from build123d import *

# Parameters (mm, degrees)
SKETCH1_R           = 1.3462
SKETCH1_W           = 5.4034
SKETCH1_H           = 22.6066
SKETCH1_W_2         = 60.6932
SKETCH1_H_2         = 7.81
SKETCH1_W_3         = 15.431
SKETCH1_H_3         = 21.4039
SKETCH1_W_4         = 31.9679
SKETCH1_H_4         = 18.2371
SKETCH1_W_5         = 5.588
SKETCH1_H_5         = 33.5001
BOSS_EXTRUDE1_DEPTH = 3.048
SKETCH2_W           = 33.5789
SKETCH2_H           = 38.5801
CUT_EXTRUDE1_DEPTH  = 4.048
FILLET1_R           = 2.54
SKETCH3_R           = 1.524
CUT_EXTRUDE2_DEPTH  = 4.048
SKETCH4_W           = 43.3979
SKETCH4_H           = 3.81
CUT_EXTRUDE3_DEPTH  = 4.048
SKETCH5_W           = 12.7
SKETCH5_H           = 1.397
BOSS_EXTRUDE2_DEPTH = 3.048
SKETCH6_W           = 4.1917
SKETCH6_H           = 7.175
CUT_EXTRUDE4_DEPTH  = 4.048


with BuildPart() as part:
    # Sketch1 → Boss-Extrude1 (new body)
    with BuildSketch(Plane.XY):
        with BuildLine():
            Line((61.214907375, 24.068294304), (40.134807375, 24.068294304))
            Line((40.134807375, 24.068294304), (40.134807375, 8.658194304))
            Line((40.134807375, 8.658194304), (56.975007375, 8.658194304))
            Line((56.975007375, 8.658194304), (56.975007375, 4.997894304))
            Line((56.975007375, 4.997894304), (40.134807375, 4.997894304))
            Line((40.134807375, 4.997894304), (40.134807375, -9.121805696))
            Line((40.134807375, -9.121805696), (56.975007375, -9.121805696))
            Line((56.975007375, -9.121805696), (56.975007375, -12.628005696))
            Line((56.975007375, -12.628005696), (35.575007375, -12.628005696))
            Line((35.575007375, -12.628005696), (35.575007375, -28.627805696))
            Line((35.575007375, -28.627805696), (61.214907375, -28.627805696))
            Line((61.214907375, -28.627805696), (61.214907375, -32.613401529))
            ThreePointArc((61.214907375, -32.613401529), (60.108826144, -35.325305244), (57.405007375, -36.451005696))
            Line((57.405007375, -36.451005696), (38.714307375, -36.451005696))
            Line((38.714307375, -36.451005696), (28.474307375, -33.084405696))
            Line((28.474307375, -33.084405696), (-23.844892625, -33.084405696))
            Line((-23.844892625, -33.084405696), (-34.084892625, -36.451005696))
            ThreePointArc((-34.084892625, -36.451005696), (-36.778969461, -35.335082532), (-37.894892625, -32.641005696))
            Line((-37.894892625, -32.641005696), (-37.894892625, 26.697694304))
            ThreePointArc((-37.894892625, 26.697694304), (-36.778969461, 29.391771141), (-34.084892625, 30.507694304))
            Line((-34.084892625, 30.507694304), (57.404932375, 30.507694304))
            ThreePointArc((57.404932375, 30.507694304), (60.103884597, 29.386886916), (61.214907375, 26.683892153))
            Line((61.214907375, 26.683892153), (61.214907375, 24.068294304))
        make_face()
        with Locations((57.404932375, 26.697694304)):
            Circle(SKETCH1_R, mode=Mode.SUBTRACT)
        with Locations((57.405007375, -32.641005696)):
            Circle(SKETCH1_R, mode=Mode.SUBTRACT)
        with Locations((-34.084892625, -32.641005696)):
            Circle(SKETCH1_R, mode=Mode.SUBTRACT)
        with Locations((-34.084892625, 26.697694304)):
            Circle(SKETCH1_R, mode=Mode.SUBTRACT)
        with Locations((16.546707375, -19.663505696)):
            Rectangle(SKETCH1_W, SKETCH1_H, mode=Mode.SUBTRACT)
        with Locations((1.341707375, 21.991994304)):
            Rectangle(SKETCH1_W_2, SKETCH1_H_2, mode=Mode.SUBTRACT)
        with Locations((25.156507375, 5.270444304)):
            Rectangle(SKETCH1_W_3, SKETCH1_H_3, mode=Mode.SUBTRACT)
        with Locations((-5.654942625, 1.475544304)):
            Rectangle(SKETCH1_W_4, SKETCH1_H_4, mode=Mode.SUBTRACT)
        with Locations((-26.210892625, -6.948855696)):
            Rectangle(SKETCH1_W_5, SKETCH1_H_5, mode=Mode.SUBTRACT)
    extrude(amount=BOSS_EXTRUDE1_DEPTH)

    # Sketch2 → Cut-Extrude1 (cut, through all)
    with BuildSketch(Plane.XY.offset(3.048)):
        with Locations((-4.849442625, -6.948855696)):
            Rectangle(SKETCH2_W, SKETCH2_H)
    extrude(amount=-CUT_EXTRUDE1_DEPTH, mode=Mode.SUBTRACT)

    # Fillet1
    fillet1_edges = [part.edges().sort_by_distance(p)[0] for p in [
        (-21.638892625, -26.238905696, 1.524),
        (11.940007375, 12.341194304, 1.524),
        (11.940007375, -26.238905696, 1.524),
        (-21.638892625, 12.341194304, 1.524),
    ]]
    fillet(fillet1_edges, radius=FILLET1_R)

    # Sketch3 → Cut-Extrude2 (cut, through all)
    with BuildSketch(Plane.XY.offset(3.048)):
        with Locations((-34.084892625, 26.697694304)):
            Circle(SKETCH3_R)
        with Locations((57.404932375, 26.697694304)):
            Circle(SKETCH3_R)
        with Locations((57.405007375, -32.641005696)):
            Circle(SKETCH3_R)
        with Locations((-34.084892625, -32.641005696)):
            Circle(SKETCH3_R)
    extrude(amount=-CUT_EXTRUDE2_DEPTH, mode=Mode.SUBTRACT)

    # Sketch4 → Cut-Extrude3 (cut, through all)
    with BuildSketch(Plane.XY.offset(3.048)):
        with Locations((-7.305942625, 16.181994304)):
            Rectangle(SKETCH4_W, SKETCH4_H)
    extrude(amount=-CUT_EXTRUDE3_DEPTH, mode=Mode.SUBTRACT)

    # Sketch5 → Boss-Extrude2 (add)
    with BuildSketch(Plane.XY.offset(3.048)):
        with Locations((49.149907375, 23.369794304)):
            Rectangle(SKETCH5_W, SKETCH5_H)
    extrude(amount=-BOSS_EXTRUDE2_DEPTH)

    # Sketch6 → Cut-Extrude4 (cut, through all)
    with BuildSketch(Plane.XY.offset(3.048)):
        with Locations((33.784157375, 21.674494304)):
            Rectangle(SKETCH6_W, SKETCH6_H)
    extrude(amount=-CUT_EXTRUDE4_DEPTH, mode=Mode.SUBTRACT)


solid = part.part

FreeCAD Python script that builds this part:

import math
import FreeCAD as App
import Part
import Sketcher

V = App.Vector
Q = App.Units.Quantity


def edges_at(feature, points):
    """Names of the edges that pass closest to the given points."""
    edges = feature.Shape.Edges
    near = lambda p: min(range(len(edges)), key=lambda i: edges[i].distToShape(Part.Vertex(*p))[0])
    return sorted({f"Edge{near(p) + 1}" for p in points})

doc = App.newDocument("Part")
body = doc.addObject("PartDesign::Body", "Body")

sketch1 = body.newObject("Sketcher::SketchObject", "Sketch")
sketch1.AttachmentSupport = (doc.getObject("XY_Plane"), [""])
sketch1.MapMode = "FlatFace"
sketch1.addGeometry([
    Part.LineSegment(V(40.134807, 24.068294, 0), V(61.214907, 24.068294, 0)),
    Part.LineSegment(V(61.214907, 24.068294, 0), V(61.214907, 26.683892, 0)),
    Part.ArcOfCircle(Part.Circle(V(57.404932, 26.697694, 0), V(0, 0, 1), 3.81), math.radians(-0.207561), math.radians(90)),
    Part.LineSegment(V(57.404932, 30.507694, 0), V(-34.084893, 30.507694, 0)),
    Part.ArcOfCircle(Part.Circle(V(-34.084893, 26.697694, 0), V(0, 0, 1), 3.81), math.radians(90), math.radians(180)),
    Part.LineSegment(V(-37.894893, 26.697694, 0), V(-37.894893, -32.641006, 0)),
    Part.ArcOfCircle(Part.Circle(V(-34.084893, -32.641006, 0), V(0, 0, 1), 3.81), math.radians(-180), math.radians(-90)),
    Part.LineSegment(V(-34.084893, -36.451006, 0), V(-23.844893, -33.084406, 0)),
    Part.LineSegment(V(-23.844893, -33.084406, 0), V(28.474307, -33.084406, 0)),
    Part.LineSegment(V(28.474307, -33.084406, 0), V(38.714307, -36.451006, 0)),
    Part.LineSegment(V(38.714307, -36.451006, 0), V(57.405007, -36.451006, 0)),
    Part.ArcOfCircle(Part.Circle(V(57.405007, -32.641006, 0), V(0, 0, 1), 3.81), math.radians(-90), math.radians(0.415122)),
    Part.LineSegment(V(61.214907, -32.613402, 0), V(61.214907, -28.627806, 0)),
    Part.LineSegment(V(61.214907, -28.627806, 0), V(35.575007, -28.627806, 0)),
    Part.LineSegment(V(35.575007, -28.627806, 0), V(35.575007, -12.628006, 0)),
    Part.LineSegment(V(35.575007, -12.628006, 0), V(56.975007, -12.628006, 0)),
    Part.LineSegment(V(56.975007, -12.628006, 0), V(56.975007, -9.121806, 0)),
    Part.LineSegment(V(56.975007, -9.121806, 0), V(40.134807, -9.121806, 0)),
    Part.LineSegment(V(40.134807, -9.121806, 0), V(40.134807, 4.997894, 0)),
    Part.LineSegment(V(40.134807, 4.997894, 0), V(56.975007, 4.997894, 0)),
    Part.LineSegment(V(56.975007, 4.997894, 0), V(56.975007, 8.658194, 0)),
    Part.LineSegment(V(56.975007, 8.658194, 0), V(40.134807, 8.658194, 0)),
    Part.LineSegment(V(40.134807, 8.658194, 0), V(40.134807, 24.068294, 0)),
    Part.Circle(V(57.405007, -32.641006, 0), V(0, 0, 1), 1.3462),
    Part.LineSegment(V(13.845007, -30.966806, 0), V(13.845007, -8.360206, 0)),
    Part.LineSegment(V(13.845007, -8.360206, 0), V(19.248407, -8.360206, 0)),
    Part.LineSegment(V(19.248407, -8.360206, 0), V(19.248407, -30.966806, 0)),
    Part.LineSegment(V(19.248407, -30.966806, 0), V(13.845007, -30.966806, 0)),
    Part.Circle(V(-34.084893, -32.641006, 0), V(0, 0, 1), 1.3462),
    Part.LineSegment(V(-29.004893, -23.698906, 0), V(-29.004893, 9.801194, 0)),
    Part.LineSegment(V(-29.004893, 9.801194, 0), V(-23.416893, 9.801194, 0)),
    Part.LineSegment(V(-23.416893, 9.801194, 0), V(-23.416893, -23.698906, 0)),
    Part.LineSegment(V(-23.416893, -23.698906, 0), V(-29.004893, -23.698906, 0)),
    Part.LineSegment(V(17.441007, -5.431506, 0), V(17.441007, 15.972394, 0)),
    Part.LineSegment(V(17.441007, 15.972394, 0), V(32.872007, 15.972394, 0)),
    Part.LineSegment(V(32.872007, 15.972394, 0), V(32.872007, -5.431506, 0)),
    Part.LineSegment(V(32.872007, -5.431506, 0), V(17.441007, -5.431506, 0)),
    Part.Circle(V(57.404932, 26.697694, 0), V(0, 0, 1), 1.3462),
    Part.LineSegment(V(-21.638893, -7.643006, 0), V(-21.638893, 10.594094, 0)),
    Part.LineSegment(V(-21.638893, 10.594094, 0), V(10.329007, 10.594094, 0)),
    Part.LineSegment(V(10.329007, 10.594094, 0), V(10.329007, -7.643006, 0)),
    Part.LineSegment(V(10.329007, -7.643006, 0), V(-21.638893, -7.643006, 0)),
    Part.LineSegment(V(-29.004893, 18.086994, 0), V(-29.004893, 25.896994, 0)),
    Part.LineSegment(V(-29.004893, 25.896994, 0), V(31.688307, 25.896994, 0)),
    Part.LineSegment(V(31.688307, 25.896994, 0), V(31.688307, 18.086994, 0)),
    Part.LineSegment(V(31.688307, 18.086994, 0), V(-29.004893, 18.086994, 0)),
    Part.Circle(V(-34.084893, 26.697694, 0), V(0, 0, 1), 1.3462),
], False)
sketch1.addConstraint([
    Sketcher.Constraint("Coincident", 0, 2, 1, 1),
    Sketcher.Constraint("Coincident", 1, 2, 2, 1),
    Sketcher.Constraint("Tangent", 2, 2, 3, 1),
    Sketcher.Constraint("Tangent", 3, 2, 4, 1),
    Sketcher.Constraint("Tangent", 4, 2, 5, 1),
    Sketcher.Constraint("Tangent", 5, 2, 6, 1),
    Sketcher.Constraint("Coincident", 6, 2, 7, 1),
    Sketcher.Constraint("Coincident", 7, 2, 8, 1),
    Sketcher.Constraint("Coincident", 8, 2, 9, 1),
    Sketcher.Constraint("Coincident", 9, 2, 10, 1),
    Sketcher.Constraint("Tangent", 10, 2, 11, 1),
    Sketcher.Constraint("Coincident", 11, 2, 12, 1),
    Sketcher.Constraint("Coincident", 12, 2, 13, 1),
    Sketcher.Constraint("Coincident", 13, 2, 14, 1),
    Sketcher.Constraint("Coincident", 14, 2, 15, 1),
    Sketcher.Constraint("Coincident", 15, 2, 16, 1),
    Sketcher.Constraint("Coincident", 16, 2, 17, 1),
    Sketcher.Constraint("Coincident", 17, 2, 18, 1),
    Sketcher.Constraint("Coincident", 18, 2, 19, 1),
    Sketcher.Constraint("Coincident", 19, 2, 20, 1),
    Sketcher.Constraint("Coincident", 20, 2, 21, 1),
    Sketcher.Constraint("Coincident", 21, 2, 22, 1),
    Sketcher.Constraint("Coincident", 22, 2, 0, 1),
    Sketcher.Constraint("Coincident", 24, 2, 25, 1),
    Sketcher.Constraint("Coincident", 25, 2, 26, 1),
    Sketcher.Constraint("Coincident", 26, 2, 27, 1),
    Sketcher.Constraint("Coincident", 27, 2, 24, 1),
    Sketcher.Constraint("Coincident", 29, 2, 30, 1),
    Sketcher.Constraint("Coincident", 30, 2, 31, 1),
    Sketcher.Constraint("Coincident", 31, 2, 32, 1),
    Sketcher.Constraint("Coincident", 32, 2, 29, 1),
    Sketcher.Constraint("Coincident", 33, 2, 34, 1),
    Sketcher.Constraint("Coincident", 34, 2, 35, 1),
    Sketcher.Constraint("Coincident", 35, 2, 36, 1),
    Sketcher.Constraint("Coincident", 36, 2, 33, 1),
    Sketcher.Constraint("Coincident", 38, 2, 39, 1),
    Sketcher.Constraint("Coincident", 39, 2, 40, 1),
    Sketcher.Constraint("Coincident", 40, 2, 41, 1),
    Sketcher.Constraint("Coincident", 41, 2, 38, 1),
    Sketcher.Constraint("Coincident", 42, 2, 43, 1),
    Sketcher.Constraint("Coincident", 43, 2, 44, 1),
    Sketcher.Constraint("Coincident", 44, 2, 45, 1),
    Sketcher.Constraint("Coincident", 45, 2, 42, 1),
    Sketcher.Constraint("Horizontal", 0),
    Sketcher.Constraint("Vertical", 1),
    Sketcher.Constraint("Horizontal", 3),
    Sketcher.Constraint("Vertical", 5),
    Sketcher.Constraint("Horizontal", 8),
    Sketcher.Constraint("Horizontal", 10),
    Sketcher.Constraint("Vertical", 12),
    Sketcher.Constraint("Horizontal", 13),
    Sketcher.Constraint("Vertical", 14),
    Sketcher.Constraint("Horizontal", 15),
    Sketcher.Constraint("Vertical", 16),
    Sketcher.Constraint("Horizontal", 17),
    Sketcher.Constraint("Vertical", 18),
    Sketcher.Constraint("Horizontal", 19),
    Sketcher.Constraint("Vertical", 20),
    Sketcher.Constraint("Horizontal", 21),
    Sketcher.Constraint("Vertical", 22),
    Sketcher.Constraint("Vertical", 24),
    Sketcher.Constraint("Horizontal", 25),
    Sketcher.Constraint("Vertical", 26),
    Sketcher.Constraint("Horizontal", 27),
    Sketcher.Constraint("Vertical", 29),
    Sketcher.Constraint("Horizontal", 30),
    Sketcher.Constraint("Vertical", 31),
    Sketcher.Constraint("Horizontal", 32),
    Sketcher.Constraint("Vertical", 33),
    Sketcher.Constraint("Horizontal", 34),
    Sketcher.Constraint("Vertical", 35),
    Sketcher.Constraint("Horizontal", 36),
    Sketcher.Constraint("Vertical", 38),
    Sketcher.Constraint("Horizontal", 39),
    Sketcher.Constraint("Vertical", 40),
    Sketcher.Constraint("Horizontal", 41),
    Sketcher.Constraint("Vertical", 42),
    Sketcher.Constraint("Horizontal", 43),
    Sketcher.Constraint("Vertical", 44),
    Sketcher.Constraint("Horizontal", 45),
    Sketcher.Constraint("Coincident", 23, 3, 11, 3),
    Sketcher.Constraint("Coincident", 28, 3, 6, 3),
    Sketcher.Constraint("Coincident", 37, 3, 2, 3),
    Sketcher.Constraint("Coincident", 46, 3, 4, 3),
    Sketcher.Constraint("Equal", 2, 4),
    Sketcher.Constraint("Equal", 4, 6),
    Sketcher.Constraint("Equal", 6, 11),
    Sketcher.Constraint("Equal", 23, 28),
    Sketcher.Constraint("Equal", 28, 37),
    Sketcher.Constraint("Equal", 37, 46),
    Sketcher.Constraint("Horizontal", 6, 3, 11, 3),
    Sketcher.Constraint("Vertical", 3, 2, 6, 2),
    Sketcher.Constraint("Vertical", 1, 2, 11, 2),
    Sketcher.Constraint("Vertical", 16, 2, 19, 2),
    Sketcher.Constraint("Vertical", 18, 2, 21, 2),
    Sketcher.Constraint("Vertical", 32, 2, 42, 2),
    Sketcher.Constraint("Equal", 7, 9),
    Sketcher.Constraint("Radius", 2, Q("0.15 in")),
    Sketcher.Constraint("Diameter", 23, Q("0.106 in")),
    Sketcher.Constraint("DistanceX", 30, 1, 30, 2, Q("0.22 in")),
    Sketcher.Constraint("DistanceY", 16, 2, 20, 2, Q("0.7 in")),
    Sketcher.Constraint("DistanceX", 46, 3, 29, 2, Q("0.2 in")),
    Sketcher.Constraint("DistanceX", 17, 2, 17, 1, Q("0.663 in")),
    Sketcher.Constraint("DistanceX", 30, 2, 38, 2, Q("0.07 in")),
    Sketcher.Constraint("DistanceX", 39, 2, 33, 2, Q("0.28 in")),
    Sketcher.Constraint("DistanceX", 8, 2, 11, 2, Q("1.289 in")),
    Sketcher.Constraint("DistanceY", 11, 3, 12, 2, Q("0.158 in")),
    Sketcher.Constraint("DistanceY", 38, 2, 46, 3, Q("0.634 in")),
    Sketcher.Constraint("DistanceX", 0, 1, 0, 2, Q("21.0801 mm")),
    Sketcher.Constraint("DistanceX", 8, 1, 8, 2, Q("52.3192 mm")),
    Sketcher.Constraint("DistanceX", 10, 1, 10, 2, Q("18.6907 mm")),
    Sketcher.Constraint("DistanceX", 13, 2, 13, 1, Q("25.6399 mm")),
    Sketcher.Constraint("DistanceX", 25, 1, 25, 2, Q("5.4034 mm")),
    Sketcher.Constraint("DistanceX", 34, 1, 34, 2, Q("15.431 mm")),
    Sketcher.Constraint("DistanceX", 39, 1, 39, 2, Q("31.9679 mm")),
    Sketcher.Constraint("DistanceX", 43, 1, 43, 2, Q("60.6932 mm")),
    Sketcher.Constraint("DistanceY", 5, 2, 5, 1, Q("59.3387 mm")),
    Sketcher.Constraint("DistanceY", 14, 1, 14, 2, Q("15.9998 mm")),
    Sketcher.Constraint("DistanceY", 16, 1, 16, 2, Q("3.5062 mm")),
    Sketcher.Constraint("DistanceY", 18, 1, 18, 2, Q("14.1197 mm")),
    Sketcher.Constraint("DistanceY", 22, 1, 22, 2, Q("15.4101 mm")),
    Sketcher.Constraint("DistanceY", 24, 1, 24, 2, Q("22.6066 mm")),
    Sketcher.Constraint("DistanceY", 29, 1, 29, 2, Q("33.5001 mm")),
    Sketcher.Constraint("DistanceY", 33, 1, 33, 2, Q("21.4039 mm")),
    Sketcher.Constraint("DistanceY", 38, 1, 38, 2, Q("18.2371 mm")),
    Sketcher.Constraint("DistanceY", 42, 1, 42, 2, Q("7.81 mm")),
    Sketcher.Constraint("DistanceY", 11, 2, -1, 1, Q("32.613402 mm")),
    Sketcher.Constraint("DistanceY", 7, 2, 6, 3, Q("0.4434 mm")),
    Sketcher.Constraint("DistanceX", 24, 2, 14, 2, Q("21.73 mm")),
    Sketcher.Constraint("DistanceY", 14, 2, 24, 2, Q("4.2678 mm")),
    Sketcher.Constraint("DistanceY", 29, 2, 46, 3, Q("16.8965 mm")),
    Sketcher.Constraint("DistanceY", 21, 2, 33, 2, Q("7.3142 mm")),
    Sketcher.Constraint("DistanceY", 42, 2, 46, 3, Q("0.8007 mm")),
    Sketcher.Constraint("DistanceX", 3, 2, 3, 1, Q("91.489825 mm")),
    Sketcher.Constraint("DistanceY", 1, 1, 1, 2, Q("2.615598 mm")),
    Sketcher.Constraint("DistanceX", -1, 1, 2, 3, Q("57.404932 mm")),
])
pad1 = body.newObject("PartDesign::Pad", "Pad")
pad1.Profile = sketch1
pad1.Length = Q("0.12 in")

sketch2 = body.newObject("Sketcher::SketchObject", "Sketch001")
sketch2.AttachmentSupport = (doc.getObject("XY_Plane"), [""])
sketch2.MapMode = "FlatFace"
sketch2.AttachmentOffset = App.Placement(V(0, 0, 0.12 * 25.4), App.Rotation())
sketch2.addGeometry([
    Part.LineSegment(V(-21.638893, 12.341194, 0), V(-21.638893, -26.238906, 0)),
    Part.LineSegment(V(-21.638893, -26.238906, 0), V(11.940007, -26.238906, 0)),
    Part.LineSegment(V(11.940007, -26.238906, 0), V(11.940007, 12.341194, 0)),
    Part.LineSegment(V(11.940007, 12.341194, 0), V(-21.638893, 12.341194, 0)),
], False)
sketch2.addConstraint([
    Sketcher.Constraint("Coincident", 0, 2, 1, 1),
    Sketcher.Constraint("Coincident", 1, 2, 2, 1),
    Sketcher.Constraint("Coincident", 2, 2, 3, 1),
    Sketcher.Constraint("Coincident", 3, 2, 0, 1),
    Sketcher.Constraint("Vertical", 0),
    Sketcher.Constraint("Horizontal", 1),
    Sketcher.Constraint("Vertical", 2),
    Sketcher.Constraint("Horizontal", 3),
    Sketcher.Constraint("DistanceX", 1, 1, 1, 2, Q("33.5789 mm")),
    Sketcher.Constraint("DistanceY", 0, 2, 0, 1, Q("38.5801 mm")),
    Sketcher.Constraint("DistanceX", 0, 2, -1, 1, Q("21.638893 mm")),
    Sketcher.Constraint("DistanceY", 0, 2, -1, 1, Q("26.238906 mm")),
])
pocket1 = body.newObject("PartDesign::Pocket", "Pocket")
pocket1.Profile = sketch2
pocket1.Type = "ThroughAll"
doc.recompute()

fillet = body.newObject("PartDesign::Fillet", "Fillet")
fillet.Base = (pocket1, edges_at(pocket1, [
    (-21.639, -26.239, 1.524),
    (11.94, 12.341, 1.524),
    (11.94, -26.239, 1.524),
    (-21.639, 12.341, 1.524),
]))
fillet.Radius = Q("0.1 in")

sketch3 = body.newObject("Sketcher::SketchObject", "Sketch002")
sketch3.AttachmentSupport = (doc.getObject("XY_Plane"), [""])
sketch3.MapMode = "FlatFace"
sketch3.AttachmentOffset = App.Placement(V(0, 0, 0.12 * 25.4), App.Rotation())
sketch3.addGeometry([
    Part.Circle(V(-34.084893, 26.697694, 0), V(0, 0, 1), 1.524),
    Part.Circle(V(57.404932, 26.697694, 0), V(0, 0, 1), 1.524),
    Part.Circle(V(57.405007, -32.641006, 0), V(0, 0, 1), 1.524),
    Part.Circle(V(-34.084893, -32.641006, 0), V(0, 0, 1), 1.524),
], False)
sketch3.addConstraint([
    Sketcher.Constraint("Equal", 0, 1),
    Sketcher.Constraint("Equal", 1, 2),
    Sketcher.Constraint("Equal", 2, 3),
    Sketcher.Constraint("Horizontal", 0, 3, 1, 3),
    Sketcher.Constraint("Horizontal", 2, 3, 3, 3),
    Sketcher.Constraint("Vertical", 0, 3, 3, 3),
    Sketcher.Constraint("Diameter", 0, Q("0.12 in")),
    Sketcher.Constraint("DistanceY", 2, 3, 1, 3, Q("59.3387 mm")),
    Sketcher.Constraint("DistanceX", 0, 3, 2, 3, Q("91.4899 mm")),
    Sketcher.Constraint("DistanceX", 0, 3, -1, 1, Q("34.084893 mm")),
    Sketcher.Constraint("DistanceY", -1, 1, 0, 3, Q("26.697694 mm")),
    Sketcher.Constraint("DistanceX", -1, 1, 1, 3, Q("57.404932 mm")),
])
pocket2 = body.newObject("PartDesign::Pocket", "Pocket001")
pocket2.Profile = sketch3
pocket2.Type = "ThroughAll"

sketch4 = body.newObject("Sketcher::SketchObject", "Sketch003")
sketch4.AttachmentSupport = (doc.getObject("XY_Plane"), [""])
sketch4.MapMode = "FlatFace"
sketch4.AttachmentOffset = App.Placement(V(0, 0, 0.12 * 25.4), App.Rotation())
sketch4.addGeometry([
    Part.LineSegment(V(-29.004893, 18.086994, 0), V(-29.004893, 14.276994, 0)),
    Part.LineSegment(V(-29.004893, 14.276994, 0), V(14.393007, 14.276994, 0)),
    Part.LineSegment(V(14.393007, 14.276994, 0), V(14.393007, 18.086994, 0)),
    Part.LineSegment(V(14.393007, 18.086994, 0), V(-29.004893, 18.086994, 0)),
], False)
sketch4.addConstraint([
    Sketcher.Constraint("Coincident", 0, 2, 1, 1),
    Sketcher.Constraint("Coincident", 1, 2, 2, 1),
    Sketcher.Constraint("Coincident", 2, 2, 3, 1),
    Sketcher.Constraint("Coincident", 3, 2, 0, 1),
    Sketcher.Constraint("Vertical", 0),
    Sketcher.Constraint("Horizontal", 1),
    Sketcher.Constraint("Vertical", 2),
    Sketcher.Constraint("Horizontal", 3),
    Sketcher.Constraint("DistanceY", 0, 2, 0, 1, Q("0.15 in")),
    Sketcher.Constraint("DistanceX", 1, 1, 1, 2, Q("43.3979 mm")),
    Sketcher.Constraint("DistanceX", 0, 2, -1, 1, Q("29.004893 mm")),
    Sketcher.Constraint("DistanceY", -1, 1, 0, 2, Q("14.276994 mm")),
])
pocket3 = body.newObject("PartDesign::Pocket", "Pocket002")
pocket3.Profile = sketch4
pocket3.Type = "ThroughAll"

sketch5 = body.newObject("Sketcher::SketchObject", "Sketch004")
sketch5.AttachmentSupport = (doc.getObject("XY_Plane"), [""])
sketch5.MapMode = "FlatFace"
sketch5.AttachmentOffset = App.Placement(V(0, 0, 0.12 * 25.4), App.Rotation())
sketch5.addGeometry([
    Part.LineSegment(V(42.799907, 24.068294, 0), V(42.799907, 22.671294, 0)),
    Part.LineSegment(V(42.799907, 22.671294, 0), V(55.499907, 22.671294, 0)),
    Part.LineSegment(V(55.499907, 22.671294, 0), V(55.499907, 24.068294, 0)),
    Part.LineSegment(V(55.499907, 24.068294, 0), V(42.799907, 24.068294, 0)),
], False)
sketch5.addConstraint([
    Sketcher.Constraint("Coincident", 0, 2, 1, 1),
    Sketcher.Constraint("Coincident", 1, 2, 2, 1),
    Sketcher.Constraint("Coincident", 2, 2, 3, 1),
    Sketcher.Constraint("Coincident", 3, 2, 0, 1),
    Sketcher.Constraint("Vertical", 0),
    Sketcher.Constraint("Horizontal", 1),
    Sketcher.Constraint("Vertical", 2),
    Sketcher.Constraint("Horizontal", 3),
    Sketcher.Constraint("DistanceX", 1, 1, 1, 2, Q("0.5 in")),
    Sketcher.Constraint("DistanceY", 0, 2, 0, 1, Q("0.055 in")),
    Sketcher.Constraint("DistanceX", -1, 1, 0, 2, Q("42.799907 mm")),
    Sketcher.Constraint("DistanceY", -1, 1, 0, 2, Q("22.671294 mm")),
])
pad2 = body.newObject("PartDesign::Pad", "Pad001")
pad2.Profile = sketch5
pad2.Length = Q("0.12 in")
pad2.Reversed = True

sketch6 = body.newObject("Sketcher::SketchObject", "Sketch005")
sketch6.AttachmentSupport = (doc.getObject("XY_Plane"), [""])
sketch6.MapMode = "FlatFace"
sketch6.AttachmentOffset = App.Placement(V(0, 0, 0.12 * 25.4), App.Rotation())
sketch6.addGeometry([
    Part.LineSegment(V(31.688307, 25.261994, 0), V(31.688307, 18.086994, 0)),
    Part.LineSegment(V(31.688307, 18.086994, 0), V(35.880007, 18.086994, 0)),
    Part.LineSegment(V(35.880007, 18.086994, 0), V(35.880007, 25.261994, 0)),
    Part.LineSegment(V(35.880007, 25.261994, 0), V(31.688307, 25.261994, 0)),
], False)
sketch6.addConstraint([
    Sketcher.Constraint("Coincident", 0, 2, 1, 1),
    Sketcher.Constraint("Coincident", 1, 2, 2, 1),
    Sketcher.Constraint("Coincident", 2, 2, 3, 1),
    Sketcher.Constraint("Coincident", 3, 2, 0, 1),
    Sketcher.Constraint("Vertical", 0),
    Sketcher.Constraint("Horizontal", 1),
    Sketcher.Constraint("Vertical", 2),
    Sketcher.Constraint("Horizontal", 3),
    Sketcher.Constraint("DistanceX", 1, 1, 1, 2, Q("4.1917 mm")),
    Sketcher.Constraint("DistanceY", 0, 2, 0, 1, Q("7.175 mm")),
    Sketcher.Constraint("DistanceX", -1, 1, 0, 2, Q("31.688307 mm")),
    Sketcher.Constraint("DistanceY", -1, 1, 0, 2, Q("18.086994 mm")),
])
pocket4 = body.newObject("PartDesign::Pocket", "Pocket003")
pocket4.Profile = sketch6
pocket4.Type = "ThroughAll"

doc.recompute()
